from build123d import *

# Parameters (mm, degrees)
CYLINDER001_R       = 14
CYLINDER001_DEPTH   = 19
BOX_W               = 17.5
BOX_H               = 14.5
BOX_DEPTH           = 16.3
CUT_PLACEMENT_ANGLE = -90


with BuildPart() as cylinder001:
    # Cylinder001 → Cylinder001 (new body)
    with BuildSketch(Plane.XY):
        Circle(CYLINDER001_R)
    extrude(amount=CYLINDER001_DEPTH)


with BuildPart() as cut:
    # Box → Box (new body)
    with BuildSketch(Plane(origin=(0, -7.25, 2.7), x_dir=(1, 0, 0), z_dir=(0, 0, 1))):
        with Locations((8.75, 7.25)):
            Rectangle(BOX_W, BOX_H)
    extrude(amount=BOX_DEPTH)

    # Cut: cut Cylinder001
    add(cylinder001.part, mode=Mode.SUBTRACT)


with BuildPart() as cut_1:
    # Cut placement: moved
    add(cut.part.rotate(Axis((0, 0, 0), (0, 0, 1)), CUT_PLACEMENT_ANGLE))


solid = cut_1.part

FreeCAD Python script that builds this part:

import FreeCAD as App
import Part
import Sketcher
from FreeCAD import Vector
Q = App.Units.Quantity

doc = App.newDocument("Part")
body = doc.addObject("PartDesign::Body", "Body")

# Sketch on XY plane
sketch1 = body.newObject("Sketcher::SketchObject", "Sketch")
sketch1.AttachmentSupport = (doc.getObject("XY_Plane"), [""])
sketch1.MapMode = "FlatFace"
sketch1.addGeometry(Part.Circle(Vector(0, 0, 0), Vector(0, 0, 1), 14), False)
sketch1.addConstraint([
    Sketcher.Constraint("Coincident", 0, 3, -1, 1),
    Sketcher.Constraint("Diameter", 0, Q("28 mm")),
])
pad1 = body.newObject("PartDesign::Pad", "Pad")
pad1.Profile = sketch1
pad1.Length = 19
body2 = doc.addObject("PartDesign::Body", "Body001")

# Sketch on XY plane
sketch2 = body2.newObject("Sketcher::SketchObject", "Sketch001")
sketch2.AttachmentSupport = (doc.getObject("XY_Plane001"), [""])
sketch2.MapMode = "FlatFace"
sketch2.AttachmentOffset = App.Placement(Vector(0, 0, 2.7), App.Rotation())
sketch2.addGeometry([
    Part.LineSegment(Vector(0, 7, 0), Vector(0, -7, 0)),
    Part.LineSegment(Vector(0, -7, 0), Vector(18, -7, 0)),
    Part.LineSegment(Vector(18, -7, 0), Vector(18, 7, 0)),
    Part.LineSegment(Vector(18, 7, 0), Vector(0, 7, 0)),
], False)
sketch2.addConstraint([
    Sketcher.Constraint("Coincident", 0, 2, 1, 1),
    Sketcher.Constraint("Coincident", 1, 2, 2, 1),
    Sketcher.Constraint("Coincident", 2, 2, 3, 1),
    Sketcher.Constraint("Coincident", 3, 2, 0, 1),
    Sketcher.Constraint("Vertical", 0),
    Sketcher.Constraint("Horizontal", 1),
    Sketcher.Constraint("Vertical", 2),
    Sketcher.Constraint("Horizontal", 3),
    Sketcher.Constraint("Symmetric", 0, 2, 3, 2, -1, 1),
    Sketcher.Constraint("DistanceX", 1, 1, 1, 2, Q("17.5 mm")),
    Sketcher.Constraint("DistanceY", 0, 2, 0, 1, Q("14.5 mm")),
])
pad2 = body2.newObject("PartDesign::Pad", "Pad001")
pad2.Profile = sketch2
pad2.Length = 16.3
doc.recompute()

boolean = body2.newObject("PartDesign::Boolean", "Boolean")
boolean.Type = "Cut"
boolean.addObjects([body])
body3 = doc.addObject("PartDesign::Body", "Body002")
doc.recompute()

body2.Placement = App.Placement(Vector(0, 0, 0), App.Rotation(Vector(0, 0, 1), 270))
boolean2 = body3.newObject("PartDesign::Boolean", "Boolean001")
boolean2.Type = "Fuse"
boolean2.addObjects([body2])

doc.recompute()
